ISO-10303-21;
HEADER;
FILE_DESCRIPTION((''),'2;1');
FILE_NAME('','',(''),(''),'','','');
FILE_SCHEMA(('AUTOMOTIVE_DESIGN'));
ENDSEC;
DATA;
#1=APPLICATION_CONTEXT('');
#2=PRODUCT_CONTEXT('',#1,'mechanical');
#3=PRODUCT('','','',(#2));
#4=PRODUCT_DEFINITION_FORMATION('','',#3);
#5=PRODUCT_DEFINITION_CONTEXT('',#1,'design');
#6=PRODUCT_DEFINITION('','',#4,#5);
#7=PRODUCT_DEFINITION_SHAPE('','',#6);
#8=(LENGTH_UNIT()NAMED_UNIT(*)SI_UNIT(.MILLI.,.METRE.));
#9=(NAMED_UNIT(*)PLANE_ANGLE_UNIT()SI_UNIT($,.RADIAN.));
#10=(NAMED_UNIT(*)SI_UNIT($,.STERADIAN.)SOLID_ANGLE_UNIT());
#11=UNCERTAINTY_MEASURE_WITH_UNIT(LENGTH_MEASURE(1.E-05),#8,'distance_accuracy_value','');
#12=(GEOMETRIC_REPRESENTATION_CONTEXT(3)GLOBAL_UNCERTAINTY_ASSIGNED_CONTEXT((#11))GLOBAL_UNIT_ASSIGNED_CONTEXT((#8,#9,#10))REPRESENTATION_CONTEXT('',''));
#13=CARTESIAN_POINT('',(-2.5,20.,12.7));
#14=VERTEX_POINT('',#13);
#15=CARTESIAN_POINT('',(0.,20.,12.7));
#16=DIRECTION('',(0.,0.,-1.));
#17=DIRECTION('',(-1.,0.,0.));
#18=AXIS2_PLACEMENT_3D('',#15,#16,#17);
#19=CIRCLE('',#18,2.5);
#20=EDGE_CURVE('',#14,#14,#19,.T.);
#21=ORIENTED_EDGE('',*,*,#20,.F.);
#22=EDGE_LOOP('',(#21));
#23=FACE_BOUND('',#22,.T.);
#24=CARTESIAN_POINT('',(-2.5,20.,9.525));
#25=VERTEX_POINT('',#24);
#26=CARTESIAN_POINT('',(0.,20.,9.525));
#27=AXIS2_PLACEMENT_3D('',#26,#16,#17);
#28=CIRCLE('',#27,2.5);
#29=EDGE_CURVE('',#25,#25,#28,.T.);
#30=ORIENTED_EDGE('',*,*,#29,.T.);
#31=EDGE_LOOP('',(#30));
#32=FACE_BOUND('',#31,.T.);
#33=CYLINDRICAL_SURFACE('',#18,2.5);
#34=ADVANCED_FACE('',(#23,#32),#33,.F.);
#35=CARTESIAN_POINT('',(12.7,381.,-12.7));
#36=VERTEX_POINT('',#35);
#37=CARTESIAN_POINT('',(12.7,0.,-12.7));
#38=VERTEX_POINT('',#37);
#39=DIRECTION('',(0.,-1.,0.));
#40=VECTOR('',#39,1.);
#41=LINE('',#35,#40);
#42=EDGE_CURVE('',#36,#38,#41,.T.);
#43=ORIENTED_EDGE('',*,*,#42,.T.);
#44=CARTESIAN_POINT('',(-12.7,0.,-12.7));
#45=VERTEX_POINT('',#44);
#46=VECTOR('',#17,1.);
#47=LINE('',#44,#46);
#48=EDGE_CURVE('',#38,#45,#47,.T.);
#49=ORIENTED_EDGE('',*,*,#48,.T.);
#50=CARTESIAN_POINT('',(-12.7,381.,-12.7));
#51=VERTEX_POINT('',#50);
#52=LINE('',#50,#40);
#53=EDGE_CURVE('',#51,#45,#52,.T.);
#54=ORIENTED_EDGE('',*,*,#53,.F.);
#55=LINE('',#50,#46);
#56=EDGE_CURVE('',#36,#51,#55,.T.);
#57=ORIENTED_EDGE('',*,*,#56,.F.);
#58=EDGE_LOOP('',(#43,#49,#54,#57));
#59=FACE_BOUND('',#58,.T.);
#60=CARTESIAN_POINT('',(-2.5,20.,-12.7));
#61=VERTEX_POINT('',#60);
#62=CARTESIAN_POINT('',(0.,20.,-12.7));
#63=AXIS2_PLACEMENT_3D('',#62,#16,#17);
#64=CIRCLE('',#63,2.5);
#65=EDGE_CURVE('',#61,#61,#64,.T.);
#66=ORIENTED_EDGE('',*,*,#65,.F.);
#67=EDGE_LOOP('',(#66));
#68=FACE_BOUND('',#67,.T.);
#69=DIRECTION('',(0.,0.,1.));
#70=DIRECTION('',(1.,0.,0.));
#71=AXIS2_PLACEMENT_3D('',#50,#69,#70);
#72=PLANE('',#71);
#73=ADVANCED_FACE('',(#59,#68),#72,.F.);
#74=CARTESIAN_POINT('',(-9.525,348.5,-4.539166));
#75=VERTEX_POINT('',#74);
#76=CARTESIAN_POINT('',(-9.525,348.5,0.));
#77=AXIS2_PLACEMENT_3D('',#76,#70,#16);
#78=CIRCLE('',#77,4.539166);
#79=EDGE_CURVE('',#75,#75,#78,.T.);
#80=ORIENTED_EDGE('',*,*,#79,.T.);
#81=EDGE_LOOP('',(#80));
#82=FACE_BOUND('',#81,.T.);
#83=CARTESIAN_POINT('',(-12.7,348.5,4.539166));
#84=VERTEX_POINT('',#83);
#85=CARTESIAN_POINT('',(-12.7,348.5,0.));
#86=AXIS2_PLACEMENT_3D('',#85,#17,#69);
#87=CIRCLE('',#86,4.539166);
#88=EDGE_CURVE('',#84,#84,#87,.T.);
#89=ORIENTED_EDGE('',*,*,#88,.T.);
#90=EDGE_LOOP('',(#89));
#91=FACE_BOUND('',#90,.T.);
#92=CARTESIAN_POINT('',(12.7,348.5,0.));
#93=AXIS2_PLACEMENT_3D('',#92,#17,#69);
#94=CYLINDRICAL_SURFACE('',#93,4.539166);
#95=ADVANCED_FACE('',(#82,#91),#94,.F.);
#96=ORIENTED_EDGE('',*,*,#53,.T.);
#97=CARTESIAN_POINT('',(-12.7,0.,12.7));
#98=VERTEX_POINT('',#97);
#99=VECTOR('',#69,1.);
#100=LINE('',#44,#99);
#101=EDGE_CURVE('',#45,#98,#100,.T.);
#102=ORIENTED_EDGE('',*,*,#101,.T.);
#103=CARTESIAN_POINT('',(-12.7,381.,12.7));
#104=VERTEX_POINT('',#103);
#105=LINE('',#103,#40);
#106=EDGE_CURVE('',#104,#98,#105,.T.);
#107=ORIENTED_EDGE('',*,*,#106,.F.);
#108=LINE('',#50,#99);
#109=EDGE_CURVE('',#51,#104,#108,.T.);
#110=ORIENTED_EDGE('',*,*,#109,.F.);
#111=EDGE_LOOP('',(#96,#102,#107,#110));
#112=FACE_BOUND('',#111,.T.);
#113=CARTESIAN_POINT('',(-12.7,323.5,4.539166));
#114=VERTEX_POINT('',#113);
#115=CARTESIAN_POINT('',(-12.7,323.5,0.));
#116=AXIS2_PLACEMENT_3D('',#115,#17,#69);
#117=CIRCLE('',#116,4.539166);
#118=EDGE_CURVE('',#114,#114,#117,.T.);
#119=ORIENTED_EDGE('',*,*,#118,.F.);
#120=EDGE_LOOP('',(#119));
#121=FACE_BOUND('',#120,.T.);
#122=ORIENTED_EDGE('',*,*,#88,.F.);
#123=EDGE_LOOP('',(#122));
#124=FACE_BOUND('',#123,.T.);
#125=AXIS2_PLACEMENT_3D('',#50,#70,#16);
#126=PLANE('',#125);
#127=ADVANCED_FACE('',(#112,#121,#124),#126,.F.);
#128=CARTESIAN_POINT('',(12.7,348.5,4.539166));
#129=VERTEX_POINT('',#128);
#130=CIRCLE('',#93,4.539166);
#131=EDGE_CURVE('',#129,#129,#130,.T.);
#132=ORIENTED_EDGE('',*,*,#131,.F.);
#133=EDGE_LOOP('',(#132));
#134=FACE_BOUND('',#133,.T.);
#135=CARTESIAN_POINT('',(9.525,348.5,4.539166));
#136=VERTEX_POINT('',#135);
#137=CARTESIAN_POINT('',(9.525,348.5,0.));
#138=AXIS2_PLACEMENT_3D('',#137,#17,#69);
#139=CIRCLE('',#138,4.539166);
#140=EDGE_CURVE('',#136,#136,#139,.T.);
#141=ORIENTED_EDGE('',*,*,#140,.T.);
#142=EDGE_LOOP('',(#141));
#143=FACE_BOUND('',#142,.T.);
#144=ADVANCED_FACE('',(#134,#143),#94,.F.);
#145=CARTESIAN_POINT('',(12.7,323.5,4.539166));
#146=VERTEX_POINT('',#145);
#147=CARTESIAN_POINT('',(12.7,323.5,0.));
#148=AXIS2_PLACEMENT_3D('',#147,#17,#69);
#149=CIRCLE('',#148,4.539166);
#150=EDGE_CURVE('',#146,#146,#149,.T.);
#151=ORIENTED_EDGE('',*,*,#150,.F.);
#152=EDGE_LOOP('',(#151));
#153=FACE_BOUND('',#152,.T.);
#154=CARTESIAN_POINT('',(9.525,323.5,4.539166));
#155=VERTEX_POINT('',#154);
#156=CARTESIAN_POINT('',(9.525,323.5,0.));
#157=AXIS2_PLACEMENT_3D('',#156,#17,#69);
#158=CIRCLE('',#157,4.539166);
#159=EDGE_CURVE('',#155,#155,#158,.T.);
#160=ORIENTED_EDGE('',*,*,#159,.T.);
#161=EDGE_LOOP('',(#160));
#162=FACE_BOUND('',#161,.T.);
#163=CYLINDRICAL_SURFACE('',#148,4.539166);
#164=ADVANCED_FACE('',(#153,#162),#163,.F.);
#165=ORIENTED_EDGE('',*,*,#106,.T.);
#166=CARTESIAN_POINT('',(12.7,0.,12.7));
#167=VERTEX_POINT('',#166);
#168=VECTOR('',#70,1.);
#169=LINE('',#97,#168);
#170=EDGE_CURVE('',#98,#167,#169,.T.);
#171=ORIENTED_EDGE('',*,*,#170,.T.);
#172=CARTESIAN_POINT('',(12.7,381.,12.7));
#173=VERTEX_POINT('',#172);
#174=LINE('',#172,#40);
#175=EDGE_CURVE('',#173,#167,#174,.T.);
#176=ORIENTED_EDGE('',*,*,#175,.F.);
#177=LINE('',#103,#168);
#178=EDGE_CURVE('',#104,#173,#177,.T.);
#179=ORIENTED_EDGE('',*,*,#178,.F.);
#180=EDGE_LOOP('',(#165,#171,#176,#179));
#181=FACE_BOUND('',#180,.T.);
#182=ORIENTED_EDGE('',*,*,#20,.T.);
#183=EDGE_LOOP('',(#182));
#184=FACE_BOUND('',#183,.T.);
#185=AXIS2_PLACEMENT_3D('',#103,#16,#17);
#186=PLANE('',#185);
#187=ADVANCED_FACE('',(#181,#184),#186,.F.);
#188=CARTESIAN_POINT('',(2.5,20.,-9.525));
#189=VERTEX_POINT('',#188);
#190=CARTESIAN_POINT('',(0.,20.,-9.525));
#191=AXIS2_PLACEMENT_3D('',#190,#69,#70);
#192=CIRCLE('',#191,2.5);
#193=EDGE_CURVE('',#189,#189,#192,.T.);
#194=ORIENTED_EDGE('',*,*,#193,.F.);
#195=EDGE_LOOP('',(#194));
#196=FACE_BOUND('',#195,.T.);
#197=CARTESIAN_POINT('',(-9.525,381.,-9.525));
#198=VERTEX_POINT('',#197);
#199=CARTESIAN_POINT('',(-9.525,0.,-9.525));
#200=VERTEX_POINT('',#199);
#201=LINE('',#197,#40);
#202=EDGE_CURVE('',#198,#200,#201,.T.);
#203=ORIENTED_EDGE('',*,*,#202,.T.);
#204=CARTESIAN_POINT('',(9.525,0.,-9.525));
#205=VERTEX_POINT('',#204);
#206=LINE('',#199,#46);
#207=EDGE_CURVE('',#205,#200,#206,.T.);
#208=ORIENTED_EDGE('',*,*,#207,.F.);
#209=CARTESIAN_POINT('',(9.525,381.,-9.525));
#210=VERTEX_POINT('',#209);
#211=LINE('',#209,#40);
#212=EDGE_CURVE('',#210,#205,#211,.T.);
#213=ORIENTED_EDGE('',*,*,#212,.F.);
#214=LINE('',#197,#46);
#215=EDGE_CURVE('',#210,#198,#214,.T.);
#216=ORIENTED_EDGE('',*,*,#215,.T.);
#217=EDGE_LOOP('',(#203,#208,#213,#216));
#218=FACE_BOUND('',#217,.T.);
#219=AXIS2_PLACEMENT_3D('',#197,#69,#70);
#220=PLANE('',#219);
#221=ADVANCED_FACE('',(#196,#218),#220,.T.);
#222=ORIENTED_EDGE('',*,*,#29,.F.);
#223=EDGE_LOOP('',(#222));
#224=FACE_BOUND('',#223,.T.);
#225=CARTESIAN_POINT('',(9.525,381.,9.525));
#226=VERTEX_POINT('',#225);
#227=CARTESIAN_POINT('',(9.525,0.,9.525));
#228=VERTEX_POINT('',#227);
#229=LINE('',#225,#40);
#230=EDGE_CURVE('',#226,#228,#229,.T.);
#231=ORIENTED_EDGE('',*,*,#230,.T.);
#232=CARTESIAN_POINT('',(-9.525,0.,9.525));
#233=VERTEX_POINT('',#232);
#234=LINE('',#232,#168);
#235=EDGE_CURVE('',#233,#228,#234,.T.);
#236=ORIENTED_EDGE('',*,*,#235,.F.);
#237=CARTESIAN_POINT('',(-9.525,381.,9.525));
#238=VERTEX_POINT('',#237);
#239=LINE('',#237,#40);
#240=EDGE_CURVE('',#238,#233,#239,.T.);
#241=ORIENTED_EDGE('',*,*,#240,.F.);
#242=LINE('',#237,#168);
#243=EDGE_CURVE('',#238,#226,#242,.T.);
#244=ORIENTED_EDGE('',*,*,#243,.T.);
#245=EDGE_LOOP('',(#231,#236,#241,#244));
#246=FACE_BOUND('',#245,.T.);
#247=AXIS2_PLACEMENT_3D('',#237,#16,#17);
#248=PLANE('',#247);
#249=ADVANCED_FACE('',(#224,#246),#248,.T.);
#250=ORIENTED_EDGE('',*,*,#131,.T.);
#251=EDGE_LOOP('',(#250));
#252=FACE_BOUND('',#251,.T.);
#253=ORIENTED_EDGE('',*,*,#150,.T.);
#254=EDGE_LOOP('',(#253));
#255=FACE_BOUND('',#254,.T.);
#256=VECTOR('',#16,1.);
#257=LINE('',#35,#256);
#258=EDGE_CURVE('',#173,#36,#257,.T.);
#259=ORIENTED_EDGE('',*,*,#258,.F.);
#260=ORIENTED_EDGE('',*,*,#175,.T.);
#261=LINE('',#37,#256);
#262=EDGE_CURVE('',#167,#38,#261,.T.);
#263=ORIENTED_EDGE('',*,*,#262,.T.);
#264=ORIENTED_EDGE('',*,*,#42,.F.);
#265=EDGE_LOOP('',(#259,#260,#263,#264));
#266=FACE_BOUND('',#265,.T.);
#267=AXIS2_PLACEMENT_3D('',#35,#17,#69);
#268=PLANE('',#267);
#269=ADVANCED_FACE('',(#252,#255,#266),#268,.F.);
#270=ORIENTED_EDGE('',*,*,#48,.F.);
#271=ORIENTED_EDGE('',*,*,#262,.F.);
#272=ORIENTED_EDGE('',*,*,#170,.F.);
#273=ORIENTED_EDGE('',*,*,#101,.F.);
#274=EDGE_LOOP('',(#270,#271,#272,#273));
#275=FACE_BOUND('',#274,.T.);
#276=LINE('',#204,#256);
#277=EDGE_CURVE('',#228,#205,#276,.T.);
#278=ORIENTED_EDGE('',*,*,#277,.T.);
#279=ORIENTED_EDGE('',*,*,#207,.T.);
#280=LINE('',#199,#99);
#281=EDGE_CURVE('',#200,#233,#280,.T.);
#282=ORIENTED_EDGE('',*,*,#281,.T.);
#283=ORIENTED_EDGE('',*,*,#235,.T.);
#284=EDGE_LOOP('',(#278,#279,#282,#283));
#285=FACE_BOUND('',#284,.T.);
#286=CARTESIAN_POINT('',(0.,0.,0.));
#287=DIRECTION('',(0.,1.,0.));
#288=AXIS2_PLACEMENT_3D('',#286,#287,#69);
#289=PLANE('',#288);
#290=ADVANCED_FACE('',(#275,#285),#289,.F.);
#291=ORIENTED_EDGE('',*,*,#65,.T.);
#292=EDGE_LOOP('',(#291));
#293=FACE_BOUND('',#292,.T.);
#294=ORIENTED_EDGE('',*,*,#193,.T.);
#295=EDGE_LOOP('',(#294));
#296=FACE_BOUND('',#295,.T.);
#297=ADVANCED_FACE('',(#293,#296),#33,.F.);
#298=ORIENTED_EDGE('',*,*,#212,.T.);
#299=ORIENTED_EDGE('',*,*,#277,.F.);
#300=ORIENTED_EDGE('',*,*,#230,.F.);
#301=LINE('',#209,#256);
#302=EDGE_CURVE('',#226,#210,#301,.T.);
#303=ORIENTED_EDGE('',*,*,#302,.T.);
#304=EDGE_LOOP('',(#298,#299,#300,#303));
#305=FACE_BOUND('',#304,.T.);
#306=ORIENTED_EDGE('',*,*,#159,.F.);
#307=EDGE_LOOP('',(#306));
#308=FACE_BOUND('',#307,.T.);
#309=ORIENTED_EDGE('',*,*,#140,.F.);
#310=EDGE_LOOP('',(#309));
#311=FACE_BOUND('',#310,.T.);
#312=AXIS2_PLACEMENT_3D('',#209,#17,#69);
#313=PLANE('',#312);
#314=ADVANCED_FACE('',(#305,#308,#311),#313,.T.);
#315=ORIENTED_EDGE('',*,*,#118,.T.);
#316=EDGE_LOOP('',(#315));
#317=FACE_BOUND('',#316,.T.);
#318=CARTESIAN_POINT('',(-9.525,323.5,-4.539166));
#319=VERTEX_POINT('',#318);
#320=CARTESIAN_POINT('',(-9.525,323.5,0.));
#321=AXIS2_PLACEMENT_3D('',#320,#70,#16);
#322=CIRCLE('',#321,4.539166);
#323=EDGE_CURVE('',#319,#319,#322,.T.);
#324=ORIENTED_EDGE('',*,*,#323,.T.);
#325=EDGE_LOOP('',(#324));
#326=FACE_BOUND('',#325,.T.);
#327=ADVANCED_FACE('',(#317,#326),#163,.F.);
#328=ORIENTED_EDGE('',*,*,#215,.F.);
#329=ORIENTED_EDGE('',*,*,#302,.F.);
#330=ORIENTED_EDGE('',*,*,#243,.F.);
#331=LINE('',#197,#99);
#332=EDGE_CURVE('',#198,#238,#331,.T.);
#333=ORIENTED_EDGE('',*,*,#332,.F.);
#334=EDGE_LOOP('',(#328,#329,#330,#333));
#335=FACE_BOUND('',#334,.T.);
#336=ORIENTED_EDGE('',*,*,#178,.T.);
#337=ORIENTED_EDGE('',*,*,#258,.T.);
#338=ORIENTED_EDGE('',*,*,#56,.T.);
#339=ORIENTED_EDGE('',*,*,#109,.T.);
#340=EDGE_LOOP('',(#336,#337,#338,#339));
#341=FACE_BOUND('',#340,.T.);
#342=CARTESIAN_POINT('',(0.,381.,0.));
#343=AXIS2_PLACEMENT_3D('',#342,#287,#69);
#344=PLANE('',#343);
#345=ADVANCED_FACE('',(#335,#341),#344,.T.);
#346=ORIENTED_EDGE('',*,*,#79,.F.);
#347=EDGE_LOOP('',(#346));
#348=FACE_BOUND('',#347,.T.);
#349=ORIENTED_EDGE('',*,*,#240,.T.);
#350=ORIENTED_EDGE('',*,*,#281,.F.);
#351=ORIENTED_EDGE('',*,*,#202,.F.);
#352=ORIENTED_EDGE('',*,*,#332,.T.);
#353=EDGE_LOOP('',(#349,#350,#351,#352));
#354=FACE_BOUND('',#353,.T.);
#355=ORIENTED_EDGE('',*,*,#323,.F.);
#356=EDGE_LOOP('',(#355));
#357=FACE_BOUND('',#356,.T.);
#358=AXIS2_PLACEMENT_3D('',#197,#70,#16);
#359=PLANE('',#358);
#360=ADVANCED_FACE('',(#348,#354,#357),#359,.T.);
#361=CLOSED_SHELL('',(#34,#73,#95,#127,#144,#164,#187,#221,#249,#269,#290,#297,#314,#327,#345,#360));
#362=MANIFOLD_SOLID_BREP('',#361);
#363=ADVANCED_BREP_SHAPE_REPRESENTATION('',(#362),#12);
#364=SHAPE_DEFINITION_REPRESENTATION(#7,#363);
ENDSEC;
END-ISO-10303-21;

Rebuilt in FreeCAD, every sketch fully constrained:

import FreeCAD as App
import Part
import Sketcher
from FreeCAD import Vector
Q = App.Units.Quantity


def add_polygon(sketch, points):
    """Adds a closed chain of lines whose ends are joined by coincident constraints."""
    first, n = sketch.GeometryCount, len(points)
    for a, b in zip(points, points[1:] + points[:1]):
        sketch.addGeometry(Part.LineSegment(App.Vector(*a, 0), App.Vector(*b, 0)), False)
    for i in range(n):
        sketch.addConstraint(Sketcher.Constraint("Coincident", first + i, 2, first + (i + 1) % n, 1))

doc = App.newDocument("Part")
body = doc.addObject("PartDesign::Body", "Body")

# Sketch on XZ plane
sketch1 = body.newObject("Sketcher::SketchObject", "Sketch")
sketch1.AttachmentSupport = (doc.getObject("XZ_Plane"), [""])
sketch1.MapMode = "FlatFace"
add_polygon(sketch1, [(-13, -13), (-13, 13), (13, 13), (13, -13)])  # lines 0-3
add_polygon(sketch1, [(10, 10), (-10, 10), (-10, -10), (10, -10)])  # lines 4-7
sketch1.addConstraint([
    Sketcher.Constraint("Vertical", 0),
    Sketcher.Constraint("Horizontal", 1),
    Sketcher.Constraint("Vertical", 2),
    Sketcher.Constraint("Horizontal", 3),
    Sketcher.Constraint("Horizontal", 4),
    Sketcher.Constraint("Vertical", 5),
    Sketcher.Constraint("Horizontal", 6),
    Sketcher.Constraint("Vertical", 7),
    Sketcher.Constraint("Symmetric", 0, 2, 2, 2, -1, 1),
    Sketcher.Constraint("Symmetric", 4, 2, 6, 2, -1, 1),
    Sketcher.Constraint("Equal", 3, 0),
    Sketcher.Constraint("Equal", 6, 5),
    Sketcher.Constraint("DistanceX", 1, 1, 1, 2, Q("1 in")),
    Sketcher.Constraint("DistanceX", 4, 2, 4, 1, Q("0.75 in")),
])
pad1 = body.newObject("PartDesign::Pad", "Pad")
pad1.Profile = sketch1
pad1.Length = Q("15 in")
pad1.Reversed = True

# Sketch on XY plane
sketch2 = body.newObject("Sketcher::SketchObject", "Sketch001")
sketch2.AttachmentSupport = (doc.getObject("XY_Plane"), [""])
sketch2.MapMode = "FlatFace"
sketch2.AttachmentOffset = App.Placement(Vector(0, 0, -0.5 * 25.4), App.Rotation())
sketch2.addGeometry(Part.Circle(Vector(0, 20, 0), Vector(0, 0, 1), 2.5), False)
sketch2.addConstraint([
    Sketcher.Constraint("PointOnObject", 0, 3, -2),
    Sketcher.Constraint("Diameter", 0, 5.0),
    Sketcher.Constraint("DistanceY", -1, 1, 0, 3, 20.0),
])
pocket1 = body.newObject("PartDesign::Pocket", "Pocket")
pocket1.Profile = sketch2
pocket1.Type = "ThroughAll"
pocket1.Reversed = True

# Sketch on YZ plane
sketch3 = body.newObject("Sketcher::SketchObject", "Sketch002")
sketch3.AttachmentSupport = (doc.getObject("YZ_Plane"), [""])
sketch3.MapMode = "FlatFace"
sketch3.AttachmentOffset = App.Placement(Vector(0, 0, -0.5 * 25.4), App.Rotation())
sketch3.addGeometry([
    Part.Circle(Vector(348.5, 0, 0), Vector(0, 0, 1), 4.5),
    Part.Circle(Vector(323.5, 0, 0), Vector(0, 0, 1), 4.5),
], False)
sketch3.addConstraint([
    Sketcher.Constraint("Equal", 0, 1),
    Sketcher.Constraint("PointOnObject", 0, 3, -1),
    Sketcher.Constraint("PointOnObject", 1, 3, -1),
    Sketcher.Constraint("Diameter", 0, 9.078333),
    Sketcher.Constraint("DistanceX", -1, 1, 0, 3, 348.5),
    Sketcher.Constraint("DistanceX", -1, 1, 1, 3, 323.5),
])
pocket2 = body.newObject("PartDesign::Pocket", "Pocket001")
pocket2.Profile = sketch3
pocket2.Type = "ThroughAll"
pocket2.Reversed = True

doc.recompute()
